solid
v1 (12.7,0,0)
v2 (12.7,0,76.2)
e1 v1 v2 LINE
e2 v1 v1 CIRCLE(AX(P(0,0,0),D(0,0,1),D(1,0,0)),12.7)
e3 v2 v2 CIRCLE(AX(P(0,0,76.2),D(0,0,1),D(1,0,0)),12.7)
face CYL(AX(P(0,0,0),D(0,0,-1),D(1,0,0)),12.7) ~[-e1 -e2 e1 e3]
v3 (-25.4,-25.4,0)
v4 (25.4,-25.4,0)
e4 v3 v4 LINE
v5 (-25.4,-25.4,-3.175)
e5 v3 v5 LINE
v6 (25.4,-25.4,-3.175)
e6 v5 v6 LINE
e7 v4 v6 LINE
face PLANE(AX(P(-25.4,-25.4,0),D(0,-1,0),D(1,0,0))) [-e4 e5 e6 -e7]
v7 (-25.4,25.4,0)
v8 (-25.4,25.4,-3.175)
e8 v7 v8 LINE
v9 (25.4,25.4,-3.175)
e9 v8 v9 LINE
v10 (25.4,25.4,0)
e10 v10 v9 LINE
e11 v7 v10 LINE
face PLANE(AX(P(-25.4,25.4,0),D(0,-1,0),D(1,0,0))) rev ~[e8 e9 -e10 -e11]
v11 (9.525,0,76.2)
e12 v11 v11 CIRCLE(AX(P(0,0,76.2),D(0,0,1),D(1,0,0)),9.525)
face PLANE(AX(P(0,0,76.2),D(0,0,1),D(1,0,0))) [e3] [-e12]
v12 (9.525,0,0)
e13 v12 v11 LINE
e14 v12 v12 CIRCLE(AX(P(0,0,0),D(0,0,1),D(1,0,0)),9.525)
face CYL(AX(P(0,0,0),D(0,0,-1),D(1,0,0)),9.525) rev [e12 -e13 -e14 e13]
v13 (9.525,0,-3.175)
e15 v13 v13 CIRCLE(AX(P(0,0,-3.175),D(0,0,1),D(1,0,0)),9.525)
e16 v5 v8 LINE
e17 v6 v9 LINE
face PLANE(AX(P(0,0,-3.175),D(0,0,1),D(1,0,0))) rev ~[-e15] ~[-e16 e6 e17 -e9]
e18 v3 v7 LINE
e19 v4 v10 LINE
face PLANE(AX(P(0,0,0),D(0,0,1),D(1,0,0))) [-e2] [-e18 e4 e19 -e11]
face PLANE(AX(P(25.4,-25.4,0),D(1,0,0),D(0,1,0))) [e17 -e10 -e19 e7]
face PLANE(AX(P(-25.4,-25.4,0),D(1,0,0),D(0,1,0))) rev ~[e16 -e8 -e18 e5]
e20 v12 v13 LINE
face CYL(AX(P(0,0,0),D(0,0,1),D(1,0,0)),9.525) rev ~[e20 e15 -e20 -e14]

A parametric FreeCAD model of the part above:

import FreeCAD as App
import Part
import Sketcher

V = App.Vector
Q = App.Units.Quantity


def add_polygon(sketch, points):
    """Adds a closed chain of lines whose ends are joined by coincident constraints."""
    first, n = sketch.GeometryCount, len(points)
    for a, b in zip(points, points[1:] + points[:1]):
        sketch.addGeometry(Part.LineSegment(App.Vector(*a, 0), App.Vector(*b, 0)), False)
    for i in range(n):
        sketch.addConstraint(Sketcher.Constraint("Coincident", first + i, 2, first + (i + 1) % n, 1))

doc = App.newDocument("Part")
params = doc.addObject("Spreadsheet::Sheet", "Params")
for row, (alias, value) in enumerate([
    ("sketch1_diameter", "1 in"),
    ("sketch1_diameter2", "0.75 in"),
    ("pad1_length", "3 in"),
    ("sketch2_diameter", "0.75 in"),
    ("sketch2_width", "2 in"),
    ("pad2_length", "0.125 in"),
], start=1):
    params.set(f"A{row}", alias)
    params.set(f"B{row}", "=" + value)
    params.setAlias(f"B{row}", alias)

body = doc.addObject("PartDesign::Body", "Body")

# Sketch on XY plane
sketch1 = body.newObject("Sketcher::SketchObject", "Sketch")
sketch1.AttachmentSupport = (doc.getObject("XY_Plane"), [""])
sketch1.MapMode = "FlatFace"
sketch1.addGeometry([
    Part.Circle(V(0, 0, 0), V(0, 0, 1), 12.7),
    Part.Circle(V(0, 0, 0), V(0, 0, 1), 9.525),
], False)
sketch1.addConstraint([
    Sketcher.Constraint("Coincident", 0, 3, -1, 1),
    Sketcher.Constraint("Coincident", 1, 3, -1, 1),
    Sketcher.Constraint("Diameter", 0, Q("1 in")),
    Sketcher.Constraint("Diameter", 1, Q("0.75 in")),
])
sketch1.setExpression("Constraints[2]", "Params.sketch1_diameter")
sketch1.setExpression("Constraints[3]", "Params.sketch1_diameter2")
pad1 = body.newObject("PartDesign::Pad", "Pad")
pad1.Profile = sketch1
pad1.setExpression("Length", "Params.pad1_length")

# Sketch on XY plane
sketch2 = body.newObject("Sketcher::SketchObject", "Sketch001")
sketch2.AttachmentSupport = (doc.getObject("XY_Plane"), [""])
sketch2.MapMode = "FlatFace"
add_polygon(sketch2, [(-25.4, 25.4), (-25.4, -25.4), (25.4, -25.4), (25.4, 25.4)])  # lines 0-3
sketch2.addGeometry(Part.Circle(V(0, 0, 0), V(0, 0, 1), 9.525), False)  # 4
sketch2.addConstraint([
    Sketcher.Constraint("Vertical", 0),
    Sketcher.Constraint("Horizontal", 1),
    Sketcher.Constraint("Vertical", 2),
    Sketcher.Constraint("Horizontal", 3),
    Sketcher.Constraint("Coincident", 4, 3, -1, 1),
    Sketcher.Constraint("Symmetric", 0, 2, 2, 2, -1, 1),
    Sketcher.Constraint("Equal", 3, 0),
    Sketcher.Constraint("Diameter", 4, Q("0.75 in")),
    Sketcher.Constraint("DistanceX", 1, 1, 1, 2, Q("2 in")),
])
sketch2.setExpression("Constraints[11]", "Params.sketch2_diameter")
sketch2.setExpression("Constraints[12]", "Params.sketch2_width")
pad2 = body.newObject("PartDesign::Pad", "Pad001")
pad2.Profile = sketch2
pad2.setExpression("Length", "Params.pad2_length")
pad2.Reversed = True

doc.recompute()
